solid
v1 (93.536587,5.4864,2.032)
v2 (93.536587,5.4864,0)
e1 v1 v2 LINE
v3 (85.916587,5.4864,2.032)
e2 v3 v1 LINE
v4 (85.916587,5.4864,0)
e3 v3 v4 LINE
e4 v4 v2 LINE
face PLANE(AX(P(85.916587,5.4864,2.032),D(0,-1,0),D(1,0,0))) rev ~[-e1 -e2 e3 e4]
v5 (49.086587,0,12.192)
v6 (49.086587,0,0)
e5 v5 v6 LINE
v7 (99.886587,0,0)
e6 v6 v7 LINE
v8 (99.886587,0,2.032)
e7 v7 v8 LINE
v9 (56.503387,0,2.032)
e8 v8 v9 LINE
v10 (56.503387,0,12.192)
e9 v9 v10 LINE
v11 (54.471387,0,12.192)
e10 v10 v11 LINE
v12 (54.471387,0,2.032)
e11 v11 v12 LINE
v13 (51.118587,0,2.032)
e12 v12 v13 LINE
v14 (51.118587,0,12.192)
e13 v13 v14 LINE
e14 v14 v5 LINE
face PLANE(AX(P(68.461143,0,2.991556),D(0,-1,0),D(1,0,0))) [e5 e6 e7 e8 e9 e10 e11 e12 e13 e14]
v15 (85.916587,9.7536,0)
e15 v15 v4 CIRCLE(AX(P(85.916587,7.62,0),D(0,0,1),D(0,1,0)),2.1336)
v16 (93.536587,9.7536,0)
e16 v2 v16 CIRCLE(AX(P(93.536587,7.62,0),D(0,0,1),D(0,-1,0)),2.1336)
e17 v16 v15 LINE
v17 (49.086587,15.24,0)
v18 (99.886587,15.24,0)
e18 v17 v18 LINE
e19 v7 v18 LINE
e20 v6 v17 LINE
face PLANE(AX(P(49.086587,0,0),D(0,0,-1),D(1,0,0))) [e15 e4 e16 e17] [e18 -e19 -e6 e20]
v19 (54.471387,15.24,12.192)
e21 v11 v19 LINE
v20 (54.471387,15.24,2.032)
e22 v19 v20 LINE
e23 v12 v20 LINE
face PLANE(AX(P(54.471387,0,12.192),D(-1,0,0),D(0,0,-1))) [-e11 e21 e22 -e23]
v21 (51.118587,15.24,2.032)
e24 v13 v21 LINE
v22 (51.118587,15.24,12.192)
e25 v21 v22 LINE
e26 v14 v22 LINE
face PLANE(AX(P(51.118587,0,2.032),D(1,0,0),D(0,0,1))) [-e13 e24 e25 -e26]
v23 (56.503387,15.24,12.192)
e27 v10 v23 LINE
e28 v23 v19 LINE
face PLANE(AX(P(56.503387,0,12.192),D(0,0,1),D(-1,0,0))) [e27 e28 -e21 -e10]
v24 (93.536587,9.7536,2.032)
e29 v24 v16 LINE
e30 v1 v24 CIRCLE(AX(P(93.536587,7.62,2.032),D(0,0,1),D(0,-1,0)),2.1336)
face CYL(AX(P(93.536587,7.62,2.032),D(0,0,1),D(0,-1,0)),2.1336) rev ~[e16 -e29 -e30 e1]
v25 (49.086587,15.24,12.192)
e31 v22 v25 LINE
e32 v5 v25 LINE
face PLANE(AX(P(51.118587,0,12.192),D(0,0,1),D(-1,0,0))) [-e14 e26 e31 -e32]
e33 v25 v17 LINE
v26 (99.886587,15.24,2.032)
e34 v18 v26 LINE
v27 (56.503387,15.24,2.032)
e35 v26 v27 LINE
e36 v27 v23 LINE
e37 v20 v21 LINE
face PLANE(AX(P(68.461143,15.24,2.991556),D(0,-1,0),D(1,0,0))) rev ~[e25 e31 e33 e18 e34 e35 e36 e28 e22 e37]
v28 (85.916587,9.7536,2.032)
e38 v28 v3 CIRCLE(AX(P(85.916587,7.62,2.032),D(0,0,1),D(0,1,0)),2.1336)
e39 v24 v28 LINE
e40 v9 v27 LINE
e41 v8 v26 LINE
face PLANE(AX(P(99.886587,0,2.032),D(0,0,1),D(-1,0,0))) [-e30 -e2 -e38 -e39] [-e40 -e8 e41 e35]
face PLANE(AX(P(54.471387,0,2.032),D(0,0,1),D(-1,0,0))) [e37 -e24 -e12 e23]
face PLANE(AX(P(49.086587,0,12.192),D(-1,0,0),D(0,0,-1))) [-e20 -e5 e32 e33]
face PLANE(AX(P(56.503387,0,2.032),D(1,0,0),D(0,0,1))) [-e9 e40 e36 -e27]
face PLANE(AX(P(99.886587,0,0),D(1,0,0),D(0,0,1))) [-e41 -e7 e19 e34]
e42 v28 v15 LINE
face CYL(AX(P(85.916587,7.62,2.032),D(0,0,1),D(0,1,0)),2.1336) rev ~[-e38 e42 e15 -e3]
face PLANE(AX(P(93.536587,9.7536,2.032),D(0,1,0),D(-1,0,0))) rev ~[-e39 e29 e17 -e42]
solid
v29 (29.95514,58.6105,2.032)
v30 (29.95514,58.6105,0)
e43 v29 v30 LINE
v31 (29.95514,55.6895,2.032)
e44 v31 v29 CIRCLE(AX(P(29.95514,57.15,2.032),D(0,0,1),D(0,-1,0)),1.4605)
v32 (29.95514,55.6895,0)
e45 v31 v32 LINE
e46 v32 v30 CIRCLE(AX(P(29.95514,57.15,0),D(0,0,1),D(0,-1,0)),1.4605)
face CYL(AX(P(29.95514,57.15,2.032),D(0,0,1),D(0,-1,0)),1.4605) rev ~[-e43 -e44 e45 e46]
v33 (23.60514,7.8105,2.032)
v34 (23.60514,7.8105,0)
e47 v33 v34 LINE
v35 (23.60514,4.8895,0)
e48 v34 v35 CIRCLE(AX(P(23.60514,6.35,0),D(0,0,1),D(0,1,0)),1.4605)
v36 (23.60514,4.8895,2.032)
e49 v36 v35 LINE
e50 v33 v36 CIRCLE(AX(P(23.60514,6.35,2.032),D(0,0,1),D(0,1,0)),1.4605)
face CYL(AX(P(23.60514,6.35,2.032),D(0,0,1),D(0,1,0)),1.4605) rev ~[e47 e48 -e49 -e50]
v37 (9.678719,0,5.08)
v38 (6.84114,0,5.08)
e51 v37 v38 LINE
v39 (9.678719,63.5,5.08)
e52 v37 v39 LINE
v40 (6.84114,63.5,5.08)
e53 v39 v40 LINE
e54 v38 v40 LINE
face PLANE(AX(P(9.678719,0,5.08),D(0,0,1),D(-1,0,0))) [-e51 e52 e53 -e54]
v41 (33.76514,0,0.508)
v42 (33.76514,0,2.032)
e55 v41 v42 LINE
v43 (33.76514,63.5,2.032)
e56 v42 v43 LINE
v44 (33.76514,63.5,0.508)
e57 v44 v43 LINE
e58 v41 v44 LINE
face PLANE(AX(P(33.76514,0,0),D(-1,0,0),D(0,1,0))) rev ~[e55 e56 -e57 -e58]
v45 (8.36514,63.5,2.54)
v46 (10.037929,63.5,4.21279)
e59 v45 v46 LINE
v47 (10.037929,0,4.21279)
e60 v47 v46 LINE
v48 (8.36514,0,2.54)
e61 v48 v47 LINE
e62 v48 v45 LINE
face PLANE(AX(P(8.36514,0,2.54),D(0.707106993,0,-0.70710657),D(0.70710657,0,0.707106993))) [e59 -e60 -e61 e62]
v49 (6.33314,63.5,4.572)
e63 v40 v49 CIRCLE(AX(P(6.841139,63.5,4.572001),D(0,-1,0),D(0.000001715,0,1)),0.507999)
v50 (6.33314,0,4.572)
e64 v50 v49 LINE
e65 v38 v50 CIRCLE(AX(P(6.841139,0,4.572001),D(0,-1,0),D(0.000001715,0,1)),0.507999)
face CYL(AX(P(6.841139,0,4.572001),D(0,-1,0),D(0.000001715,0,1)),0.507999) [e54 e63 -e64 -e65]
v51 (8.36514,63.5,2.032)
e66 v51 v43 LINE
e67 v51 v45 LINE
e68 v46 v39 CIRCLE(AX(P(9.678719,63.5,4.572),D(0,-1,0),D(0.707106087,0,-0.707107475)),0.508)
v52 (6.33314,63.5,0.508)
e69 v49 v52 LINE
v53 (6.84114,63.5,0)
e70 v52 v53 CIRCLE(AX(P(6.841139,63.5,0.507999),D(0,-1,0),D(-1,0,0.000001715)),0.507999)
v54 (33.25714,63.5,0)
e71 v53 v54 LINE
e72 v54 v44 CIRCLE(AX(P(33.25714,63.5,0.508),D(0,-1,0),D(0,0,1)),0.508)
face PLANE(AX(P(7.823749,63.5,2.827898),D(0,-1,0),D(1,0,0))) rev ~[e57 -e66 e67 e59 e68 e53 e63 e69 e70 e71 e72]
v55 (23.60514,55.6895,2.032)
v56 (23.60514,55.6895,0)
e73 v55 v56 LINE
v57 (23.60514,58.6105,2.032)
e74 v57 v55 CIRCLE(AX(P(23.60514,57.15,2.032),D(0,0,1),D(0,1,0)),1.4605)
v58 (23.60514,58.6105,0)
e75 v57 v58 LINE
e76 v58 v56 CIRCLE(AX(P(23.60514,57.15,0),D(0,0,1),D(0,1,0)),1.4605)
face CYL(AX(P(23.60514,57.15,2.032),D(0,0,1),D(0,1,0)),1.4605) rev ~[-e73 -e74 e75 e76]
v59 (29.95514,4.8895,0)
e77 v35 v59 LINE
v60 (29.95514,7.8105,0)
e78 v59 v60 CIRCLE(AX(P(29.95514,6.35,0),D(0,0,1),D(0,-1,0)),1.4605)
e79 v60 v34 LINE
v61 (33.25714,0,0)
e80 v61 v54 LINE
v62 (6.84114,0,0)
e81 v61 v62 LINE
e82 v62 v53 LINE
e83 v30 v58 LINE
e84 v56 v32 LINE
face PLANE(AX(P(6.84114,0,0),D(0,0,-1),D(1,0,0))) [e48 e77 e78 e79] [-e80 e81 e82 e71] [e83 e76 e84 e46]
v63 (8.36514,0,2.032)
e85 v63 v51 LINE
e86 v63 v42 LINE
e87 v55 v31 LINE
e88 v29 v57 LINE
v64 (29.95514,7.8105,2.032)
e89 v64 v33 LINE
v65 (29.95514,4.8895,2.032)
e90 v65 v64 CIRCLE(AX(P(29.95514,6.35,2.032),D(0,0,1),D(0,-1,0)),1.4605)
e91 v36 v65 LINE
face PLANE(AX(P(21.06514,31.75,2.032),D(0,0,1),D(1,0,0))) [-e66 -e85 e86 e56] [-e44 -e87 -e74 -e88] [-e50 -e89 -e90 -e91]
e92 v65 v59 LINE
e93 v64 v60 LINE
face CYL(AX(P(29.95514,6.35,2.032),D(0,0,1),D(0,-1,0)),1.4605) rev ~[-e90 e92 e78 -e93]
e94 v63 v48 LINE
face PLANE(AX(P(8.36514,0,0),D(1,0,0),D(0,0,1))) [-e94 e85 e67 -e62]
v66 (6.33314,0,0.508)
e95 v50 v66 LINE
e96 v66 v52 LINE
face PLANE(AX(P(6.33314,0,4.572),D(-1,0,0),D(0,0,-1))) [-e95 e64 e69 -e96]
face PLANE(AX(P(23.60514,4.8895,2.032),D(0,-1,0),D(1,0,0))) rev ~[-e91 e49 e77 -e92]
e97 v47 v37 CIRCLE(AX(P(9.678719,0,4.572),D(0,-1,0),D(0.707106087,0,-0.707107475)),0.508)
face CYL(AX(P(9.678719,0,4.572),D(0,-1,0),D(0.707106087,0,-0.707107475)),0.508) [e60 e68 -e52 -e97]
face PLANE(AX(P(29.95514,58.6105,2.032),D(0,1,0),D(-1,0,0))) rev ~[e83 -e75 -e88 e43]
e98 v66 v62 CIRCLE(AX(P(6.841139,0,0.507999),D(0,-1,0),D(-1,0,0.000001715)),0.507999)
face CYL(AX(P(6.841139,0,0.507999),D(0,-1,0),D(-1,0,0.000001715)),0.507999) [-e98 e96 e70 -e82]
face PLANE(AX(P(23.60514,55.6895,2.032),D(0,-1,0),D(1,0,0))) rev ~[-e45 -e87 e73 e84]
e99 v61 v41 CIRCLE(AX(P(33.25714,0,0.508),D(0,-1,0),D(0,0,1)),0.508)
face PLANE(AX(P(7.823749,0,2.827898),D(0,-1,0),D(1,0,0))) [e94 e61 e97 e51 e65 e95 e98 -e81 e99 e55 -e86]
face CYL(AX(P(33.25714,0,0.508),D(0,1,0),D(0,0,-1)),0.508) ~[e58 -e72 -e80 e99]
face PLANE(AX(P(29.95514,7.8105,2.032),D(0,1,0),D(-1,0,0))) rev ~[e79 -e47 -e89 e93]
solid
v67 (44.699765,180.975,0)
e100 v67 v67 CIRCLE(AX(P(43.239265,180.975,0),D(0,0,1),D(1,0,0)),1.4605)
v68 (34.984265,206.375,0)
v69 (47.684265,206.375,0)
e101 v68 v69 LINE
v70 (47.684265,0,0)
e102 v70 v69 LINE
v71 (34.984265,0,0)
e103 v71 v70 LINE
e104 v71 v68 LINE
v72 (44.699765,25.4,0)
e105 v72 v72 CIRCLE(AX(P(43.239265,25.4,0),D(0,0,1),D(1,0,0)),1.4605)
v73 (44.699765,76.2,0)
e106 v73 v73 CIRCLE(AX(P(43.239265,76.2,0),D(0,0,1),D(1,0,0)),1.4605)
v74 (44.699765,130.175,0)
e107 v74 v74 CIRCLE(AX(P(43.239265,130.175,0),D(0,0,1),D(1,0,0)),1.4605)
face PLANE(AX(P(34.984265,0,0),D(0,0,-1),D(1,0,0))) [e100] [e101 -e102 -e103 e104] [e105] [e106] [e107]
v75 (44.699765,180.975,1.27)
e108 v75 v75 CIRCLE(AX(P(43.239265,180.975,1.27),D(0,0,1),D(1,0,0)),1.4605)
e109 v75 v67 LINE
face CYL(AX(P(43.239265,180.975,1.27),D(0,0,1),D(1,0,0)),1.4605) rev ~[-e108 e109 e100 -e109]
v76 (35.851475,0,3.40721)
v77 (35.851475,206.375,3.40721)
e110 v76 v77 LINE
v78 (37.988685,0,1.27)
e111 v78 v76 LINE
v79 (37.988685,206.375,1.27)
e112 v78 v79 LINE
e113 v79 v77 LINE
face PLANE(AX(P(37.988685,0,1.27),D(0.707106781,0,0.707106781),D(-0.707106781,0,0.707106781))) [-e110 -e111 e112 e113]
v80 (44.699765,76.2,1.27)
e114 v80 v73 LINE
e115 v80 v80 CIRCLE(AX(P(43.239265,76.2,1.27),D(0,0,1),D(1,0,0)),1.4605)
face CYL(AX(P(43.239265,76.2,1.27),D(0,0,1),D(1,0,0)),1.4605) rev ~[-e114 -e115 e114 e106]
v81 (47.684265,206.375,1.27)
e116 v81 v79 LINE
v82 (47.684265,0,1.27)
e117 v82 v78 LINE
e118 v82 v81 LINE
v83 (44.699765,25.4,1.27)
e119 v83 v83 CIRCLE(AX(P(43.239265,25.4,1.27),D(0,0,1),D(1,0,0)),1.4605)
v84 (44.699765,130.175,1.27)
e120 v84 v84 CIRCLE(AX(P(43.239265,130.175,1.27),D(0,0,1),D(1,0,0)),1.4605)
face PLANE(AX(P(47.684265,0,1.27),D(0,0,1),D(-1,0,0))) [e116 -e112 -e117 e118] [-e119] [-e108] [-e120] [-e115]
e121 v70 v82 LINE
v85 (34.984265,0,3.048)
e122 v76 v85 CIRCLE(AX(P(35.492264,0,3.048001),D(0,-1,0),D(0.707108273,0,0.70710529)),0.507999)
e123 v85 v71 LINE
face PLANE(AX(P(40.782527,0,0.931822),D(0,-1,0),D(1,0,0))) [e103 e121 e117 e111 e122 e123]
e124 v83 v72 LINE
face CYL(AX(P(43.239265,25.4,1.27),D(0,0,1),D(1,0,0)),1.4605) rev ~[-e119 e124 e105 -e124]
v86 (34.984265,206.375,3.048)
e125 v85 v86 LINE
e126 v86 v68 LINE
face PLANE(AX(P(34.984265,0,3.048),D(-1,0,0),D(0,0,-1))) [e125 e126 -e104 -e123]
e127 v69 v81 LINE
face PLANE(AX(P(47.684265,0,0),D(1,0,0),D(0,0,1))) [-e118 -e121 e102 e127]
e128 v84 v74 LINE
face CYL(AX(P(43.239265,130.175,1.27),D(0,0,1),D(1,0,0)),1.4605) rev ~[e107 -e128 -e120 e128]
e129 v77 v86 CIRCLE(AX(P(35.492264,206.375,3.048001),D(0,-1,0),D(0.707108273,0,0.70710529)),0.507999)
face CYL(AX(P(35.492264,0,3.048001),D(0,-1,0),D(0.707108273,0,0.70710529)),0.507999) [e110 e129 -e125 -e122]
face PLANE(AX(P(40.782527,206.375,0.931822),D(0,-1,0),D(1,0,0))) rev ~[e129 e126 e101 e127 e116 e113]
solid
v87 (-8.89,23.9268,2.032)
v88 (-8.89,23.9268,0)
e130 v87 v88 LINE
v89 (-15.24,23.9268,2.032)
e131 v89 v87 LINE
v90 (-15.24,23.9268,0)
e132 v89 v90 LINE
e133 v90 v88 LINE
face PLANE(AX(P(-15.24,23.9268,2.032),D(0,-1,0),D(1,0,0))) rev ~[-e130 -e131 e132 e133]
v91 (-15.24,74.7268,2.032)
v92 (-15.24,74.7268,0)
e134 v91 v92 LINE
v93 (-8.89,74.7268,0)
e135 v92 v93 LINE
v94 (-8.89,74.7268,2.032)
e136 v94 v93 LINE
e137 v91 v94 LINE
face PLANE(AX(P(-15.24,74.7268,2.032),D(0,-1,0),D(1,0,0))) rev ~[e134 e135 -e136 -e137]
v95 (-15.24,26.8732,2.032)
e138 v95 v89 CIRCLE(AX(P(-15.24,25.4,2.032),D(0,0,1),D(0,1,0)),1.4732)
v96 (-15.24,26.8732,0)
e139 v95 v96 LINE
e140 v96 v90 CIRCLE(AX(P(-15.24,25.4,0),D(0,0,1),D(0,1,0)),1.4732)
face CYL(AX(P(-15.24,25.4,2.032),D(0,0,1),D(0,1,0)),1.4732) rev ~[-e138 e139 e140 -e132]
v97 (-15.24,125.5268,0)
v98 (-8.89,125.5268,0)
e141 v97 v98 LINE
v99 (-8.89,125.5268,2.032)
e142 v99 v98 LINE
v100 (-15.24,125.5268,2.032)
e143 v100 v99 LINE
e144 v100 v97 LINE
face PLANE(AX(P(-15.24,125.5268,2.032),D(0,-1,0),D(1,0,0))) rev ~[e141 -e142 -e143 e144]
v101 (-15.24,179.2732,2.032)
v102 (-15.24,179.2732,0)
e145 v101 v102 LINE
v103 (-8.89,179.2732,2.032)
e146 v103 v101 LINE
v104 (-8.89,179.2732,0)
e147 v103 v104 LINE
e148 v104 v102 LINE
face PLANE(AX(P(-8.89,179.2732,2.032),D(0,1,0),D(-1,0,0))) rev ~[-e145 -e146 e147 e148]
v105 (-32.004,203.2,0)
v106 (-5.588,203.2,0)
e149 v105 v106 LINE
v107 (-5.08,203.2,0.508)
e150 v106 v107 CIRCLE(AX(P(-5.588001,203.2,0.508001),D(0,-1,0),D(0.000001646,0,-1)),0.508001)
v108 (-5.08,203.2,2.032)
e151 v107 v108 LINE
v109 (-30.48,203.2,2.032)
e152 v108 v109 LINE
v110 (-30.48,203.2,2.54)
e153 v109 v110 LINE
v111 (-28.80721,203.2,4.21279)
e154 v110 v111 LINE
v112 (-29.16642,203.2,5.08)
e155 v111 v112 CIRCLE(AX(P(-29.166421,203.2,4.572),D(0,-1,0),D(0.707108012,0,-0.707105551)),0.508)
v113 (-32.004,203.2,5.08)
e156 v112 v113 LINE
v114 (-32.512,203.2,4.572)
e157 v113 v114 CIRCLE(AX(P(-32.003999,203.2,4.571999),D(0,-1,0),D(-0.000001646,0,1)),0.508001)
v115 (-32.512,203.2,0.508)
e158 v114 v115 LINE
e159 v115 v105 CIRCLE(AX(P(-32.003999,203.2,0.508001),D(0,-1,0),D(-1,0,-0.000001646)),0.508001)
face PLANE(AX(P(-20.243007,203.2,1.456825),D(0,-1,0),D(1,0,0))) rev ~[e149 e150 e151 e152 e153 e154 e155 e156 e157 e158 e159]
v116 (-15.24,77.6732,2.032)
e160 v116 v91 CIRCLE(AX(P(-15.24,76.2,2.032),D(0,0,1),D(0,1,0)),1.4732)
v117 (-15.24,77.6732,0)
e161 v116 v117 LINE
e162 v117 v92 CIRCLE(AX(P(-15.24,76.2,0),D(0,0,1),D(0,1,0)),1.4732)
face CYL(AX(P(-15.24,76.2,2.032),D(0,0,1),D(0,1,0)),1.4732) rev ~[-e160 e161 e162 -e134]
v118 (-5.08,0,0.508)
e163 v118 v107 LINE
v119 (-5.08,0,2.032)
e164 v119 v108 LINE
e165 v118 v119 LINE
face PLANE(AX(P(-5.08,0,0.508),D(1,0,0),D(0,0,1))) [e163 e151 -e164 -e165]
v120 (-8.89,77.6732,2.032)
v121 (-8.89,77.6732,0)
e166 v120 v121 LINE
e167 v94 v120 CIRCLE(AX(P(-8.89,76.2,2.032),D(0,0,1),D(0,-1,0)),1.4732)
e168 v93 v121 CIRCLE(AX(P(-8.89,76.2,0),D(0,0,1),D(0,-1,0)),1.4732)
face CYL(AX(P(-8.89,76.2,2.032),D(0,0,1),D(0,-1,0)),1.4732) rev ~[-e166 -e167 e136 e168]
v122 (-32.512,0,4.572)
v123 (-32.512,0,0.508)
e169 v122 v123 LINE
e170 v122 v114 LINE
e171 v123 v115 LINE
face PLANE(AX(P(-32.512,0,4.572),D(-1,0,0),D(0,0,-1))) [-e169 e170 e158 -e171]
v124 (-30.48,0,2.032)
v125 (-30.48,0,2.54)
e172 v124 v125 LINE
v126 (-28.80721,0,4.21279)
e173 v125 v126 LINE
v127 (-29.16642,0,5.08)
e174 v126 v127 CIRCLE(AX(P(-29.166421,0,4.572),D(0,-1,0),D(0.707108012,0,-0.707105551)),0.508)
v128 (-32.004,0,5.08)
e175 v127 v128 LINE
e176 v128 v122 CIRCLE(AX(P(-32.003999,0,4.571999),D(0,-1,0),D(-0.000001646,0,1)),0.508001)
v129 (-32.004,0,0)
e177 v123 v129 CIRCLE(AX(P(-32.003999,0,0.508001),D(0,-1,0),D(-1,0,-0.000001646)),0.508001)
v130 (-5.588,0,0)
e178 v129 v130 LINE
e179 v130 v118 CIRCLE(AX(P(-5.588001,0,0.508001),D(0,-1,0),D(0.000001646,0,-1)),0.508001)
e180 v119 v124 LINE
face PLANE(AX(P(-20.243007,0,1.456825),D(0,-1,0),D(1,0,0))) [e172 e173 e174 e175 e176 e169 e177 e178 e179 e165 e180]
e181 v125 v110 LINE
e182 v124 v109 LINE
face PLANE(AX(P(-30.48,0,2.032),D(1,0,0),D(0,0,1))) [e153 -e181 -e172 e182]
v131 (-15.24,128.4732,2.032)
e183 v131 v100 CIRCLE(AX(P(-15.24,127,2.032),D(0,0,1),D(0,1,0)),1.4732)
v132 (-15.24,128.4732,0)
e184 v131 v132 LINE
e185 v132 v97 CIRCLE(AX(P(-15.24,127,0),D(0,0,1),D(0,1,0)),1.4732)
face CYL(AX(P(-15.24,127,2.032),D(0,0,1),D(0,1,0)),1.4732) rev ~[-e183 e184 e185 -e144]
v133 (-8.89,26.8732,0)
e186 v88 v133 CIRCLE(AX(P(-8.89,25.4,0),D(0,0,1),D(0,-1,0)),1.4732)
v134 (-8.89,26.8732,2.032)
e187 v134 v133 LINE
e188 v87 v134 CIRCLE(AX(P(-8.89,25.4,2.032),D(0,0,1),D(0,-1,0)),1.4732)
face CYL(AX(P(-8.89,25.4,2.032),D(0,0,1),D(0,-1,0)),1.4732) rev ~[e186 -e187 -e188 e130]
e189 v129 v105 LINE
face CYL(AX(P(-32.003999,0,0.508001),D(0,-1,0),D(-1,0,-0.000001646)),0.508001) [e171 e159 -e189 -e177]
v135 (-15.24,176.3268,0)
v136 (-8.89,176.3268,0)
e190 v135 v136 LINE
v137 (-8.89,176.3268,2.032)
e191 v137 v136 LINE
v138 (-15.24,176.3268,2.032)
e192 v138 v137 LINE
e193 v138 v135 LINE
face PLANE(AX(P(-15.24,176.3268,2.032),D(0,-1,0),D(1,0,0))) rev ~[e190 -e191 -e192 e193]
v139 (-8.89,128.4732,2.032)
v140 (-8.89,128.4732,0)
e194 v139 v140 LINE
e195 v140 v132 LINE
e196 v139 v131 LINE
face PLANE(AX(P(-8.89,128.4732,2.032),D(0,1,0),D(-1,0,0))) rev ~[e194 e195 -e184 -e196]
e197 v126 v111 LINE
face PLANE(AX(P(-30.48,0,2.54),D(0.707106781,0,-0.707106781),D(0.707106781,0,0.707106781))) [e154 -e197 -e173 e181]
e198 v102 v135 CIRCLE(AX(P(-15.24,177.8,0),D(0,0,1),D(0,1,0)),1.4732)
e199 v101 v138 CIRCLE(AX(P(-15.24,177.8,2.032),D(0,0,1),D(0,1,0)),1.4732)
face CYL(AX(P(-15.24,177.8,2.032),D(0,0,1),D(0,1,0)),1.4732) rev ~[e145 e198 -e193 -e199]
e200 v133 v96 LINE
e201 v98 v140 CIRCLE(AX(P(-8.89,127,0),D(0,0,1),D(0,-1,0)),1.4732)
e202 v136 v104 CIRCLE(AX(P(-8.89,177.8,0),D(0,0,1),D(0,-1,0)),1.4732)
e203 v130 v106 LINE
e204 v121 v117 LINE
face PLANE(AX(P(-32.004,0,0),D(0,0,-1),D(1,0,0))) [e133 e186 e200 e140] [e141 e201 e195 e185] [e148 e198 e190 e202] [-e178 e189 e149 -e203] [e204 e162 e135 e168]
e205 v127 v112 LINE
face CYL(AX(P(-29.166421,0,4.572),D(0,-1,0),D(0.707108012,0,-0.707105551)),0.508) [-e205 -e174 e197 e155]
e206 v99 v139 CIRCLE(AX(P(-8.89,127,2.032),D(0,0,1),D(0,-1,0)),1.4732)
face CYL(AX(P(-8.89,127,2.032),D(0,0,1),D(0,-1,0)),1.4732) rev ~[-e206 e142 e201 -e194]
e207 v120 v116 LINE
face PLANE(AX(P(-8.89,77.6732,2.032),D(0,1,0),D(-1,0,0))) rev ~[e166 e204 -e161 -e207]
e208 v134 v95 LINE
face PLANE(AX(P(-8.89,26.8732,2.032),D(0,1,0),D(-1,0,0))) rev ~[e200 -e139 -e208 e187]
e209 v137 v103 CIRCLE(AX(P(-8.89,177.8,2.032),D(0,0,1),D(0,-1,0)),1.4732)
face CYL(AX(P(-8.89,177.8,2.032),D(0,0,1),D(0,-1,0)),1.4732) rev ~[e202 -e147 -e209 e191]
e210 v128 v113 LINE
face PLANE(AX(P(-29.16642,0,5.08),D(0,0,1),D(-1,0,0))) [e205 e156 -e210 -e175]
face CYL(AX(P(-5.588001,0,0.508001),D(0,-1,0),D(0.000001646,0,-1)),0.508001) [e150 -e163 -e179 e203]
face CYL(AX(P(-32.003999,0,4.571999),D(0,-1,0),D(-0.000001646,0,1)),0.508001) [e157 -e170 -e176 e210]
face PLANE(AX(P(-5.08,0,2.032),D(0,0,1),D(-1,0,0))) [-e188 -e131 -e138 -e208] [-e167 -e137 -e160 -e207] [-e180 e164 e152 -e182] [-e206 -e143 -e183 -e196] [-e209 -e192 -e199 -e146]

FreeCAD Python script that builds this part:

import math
import FreeCAD as App
import Part
import Sketcher
Q = App.Units.Quantity


def edges_at(feature, points):
    """Names of the edges that pass closest to the given points."""
    edges = feature.Shape.Edges
    near = lambda p: min(range(len(edges)), key=lambda i: edges[i].distToShape(Part.Vertex(*p))[0])
    return sorted({f"Edge{near(p) + 1}" for p in points})


def add_polygon(sketch, points):
    """Adds a closed chain of lines whose ends are joined by coincident constraints."""
    first, n = sketch.GeometryCount, len(points)
    for a, b in zip(points, points[1:] + points[:1]):
        sketch.addGeometry(Part.LineSegment(App.Vector(*a, 0), App.Vector(*b, 0)), False)
    for i in range(n):
        sketch.addConstraint(Sketcher.Constraint("Coincident", first + i, 2, first + (i + 1) % n, 1))

doc = App.newDocument("Part")
params = doc.addObject("Spreadsheet::Sheet", "Params")
for row, (alias, value) in enumerate([
    ("sketch1_width", "1 in"),
    ("sketch1_height", "2.5 in"),
    ("pad1_length", "0.08 in"),
    ("sketch2_radius", "0.02 in"),
    ("sketch2_height", "0.1 in"),
    ("sketch2_width", "0.06 in"),
    ("sketch2_height2", "0.16 in"),
    ("pad2_length", "2.5 in"),
    ("fillet_radius", "0.02 in"),
    ("sketch3_width", "0.25 in"),
    ("sketch4_radius", "0.02 in"),
    ("sketch4_width", "0.5 in"),
    ("sketch4_height", "0.12 in"),
    ("sketch4_height2", "0.05 in"),
    ("pad3_length", "8.125 in"),
    ("sketch5_diameter", "0.115 in"),
    ("sketch6_width", "2 in"),
    ("sketch6_height", "0.4 in"),
    ("sketch6_width2", "0.08 in"),
    ("sketch6_width3", "1.708 in"),
    ("pad4_length", "0.6 in"),
    ("sketch7_width", "0.3 in"),
    ("sketch7_radius", "0.084 in"),
    ("sketch8_width", "1 in"),
    ("sketch8_radius", "0.02 in"),
    ("sketch8_width2", "1.04 in"),
    ("sketch8_height", "0.06 in"),
    ("sketch8_height2", "0.02 in"),
    ("pad5_length", "8 in"),
    ("sketch9_radius", "0.058 in"),
    ("sketch9_width", "0.25 in"),
], start=1):
    params.set(f"A{row}", alias)
    params.set(f"B{row}", "=" + value)
    params.setAlias(f"B{row}", alias)

body = doc.addObject("PartDesign::Body", "Body")

# Sketch on XY plane
sketch1 = body.newObject("Sketcher::SketchObject", "Sketch")
sketch1.AttachmentSupport = (doc.getObject("XY_Plane"), [""])
sketch1.MapMode = "FlatFace"
add_polygon(sketch1, [(8, 64), (8, 0), (34, 0), (34, 64)])  # lines 0-3
sketch1.addConstraint([
    Sketcher.Constraint("Vertical", 0),
    Sketcher.Constraint("Horizontal", 1),
    Sketcher.Constraint("Vertical", 2),
    Sketcher.Constraint("Horizontal", 3),
    Sketcher.Constraint("PointOnObject", 0, 2, -1),
    Sketcher.Constraint("DistanceX", 1, 1, 1, 2, Q("1 in")),
    Sketcher.Constraint("DistanceY", 0, 2, 0, 1, Q("2.5 in")),
    Sketcher.Constraint("DistanceX", -1, 1, 0, 2, 8.36514),
])
sketch1.setExpression("Constraints[9]", "Params.sketch1_width")
sketch1.setExpression("Constraints[10]", "Params.sketch1_height")
pad1 = body.newObject("PartDesign::Pad", "Pad")
pad1.Profile = sketch1
pad1.setExpression("Length", "Params.pad1_length")

# Sketch on XZ plane
sketch2 = body.newObject("Sketcher::SketchObject", "Sketch001")
sketch2.AttachmentSupport = (doc.getObject("XZ_Plane"), [""])
sketch2.MapMode = "FlatFace"
sketch2.addGeometry([
    Part.LineSegment(App.Vector(6.8, 0, 0), App.Vector(8.4, 0, 0)),  # 0
    Part.LineSegment(App.Vector(8.4, 0, 0), App.Vector(8.4, 2.5, 0)),  # 1
    Part.LineSegment(App.Vector(8.4, 2.5, 0), App.Vector(10, 4.2, 0)),  # 2
    Part.ArcOfCircle(Part.Circle(App.Vector(9.7, 4.6, 0), App.Vector(0, 0, 1), 0.5), math.radians(-45), math.radians(90)),  # 3
    Part.LineSegment(App.Vector(9.7, 5.1, 0), App.Vector(6.8, 5.1, 0)),  # 4
    Part.ArcOfCircle(Part.Circle(App.Vector(6.8, 4.6, 0), App.Vector(0, 0, 1), 0.5), math.radians(90), math.radians(180)),  # 5
    Part.LineSegment(App.Vector(6.3, 4.6, 0), App.Vector(6.3, 0.5, 0)),  # 6
    Part.ArcOfCircle(Part.Circle(App.Vector(6.8, 0.5, 0), App.Vector(0, 0, 1), 0.5), math.radians(180), math.radians(270)),  # 7
], False)
sketch2.addConstraint([
    Sketcher.Constraint("Coincident", 0, 2, 1, 1),
    Sketcher.Constraint("Coincident", 1, 2, 2, 1),
    Sketcher.Constraint("Tangent", 2, 2, 3, 1),
    Sketcher.Constraint("Tangent", 3, 2, 4, 1),
    Sketcher.Constraint("Tangent", 4, 2, 5, 1),
    Sketcher.Constraint("Tangent", 5, 2, 6, 1),
    Sketcher.Constraint("Tangent", 6, 2, 7, 1),
    Sketcher.Constraint("Tangent", 7, 2, 0, 1),
    Sketcher.Constraint("Horizontal", 0),
    Sketcher.Constraint("Vertical", 1),
    Sketcher.Constraint("Horizontal", 4),
    Sketcher.Constraint("Vertical", 6),
    Sketcher.Constraint("Equal", 3, 5),
    Sketcher.Constraint("Equal", 5, 7),
    Sketcher.Constraint("PointOnObject", 0, 2, -1),
    Sketcher.Constraint("Radius", 3, Q("0.02 in")),
    Sketcher.Constraint("DistanceY", 1, 1, 1, 2, Q("0.1 in")),
    Sketcher.Constraint("Angle", 2, Q("45.000017 deg")),
    Sketcher.Constraint("DistanceX", 0, 1, 0, 2, Q("0.06 in")),
    Sketcher.Constraint("DistanceY", 6, 2, 6, 1, Q("0.16 in")),
    Sketcher.Constraint("DistanceX", -1, 1, 3, 3, 9.678719),
])
sketch2.setExpression("Constraints[15]", "Params.sketch2_radius")
sketch2.setExpression("Constraints[16]", "Params.sketch2_height")
sketch2.setExpression("Constraints[18]", "Params.sketch2_width")
sketch2.setExpression("Constraints[19]", "Params.sketch2_height2")
pad2 = body.newObject("PartDesign::Pad", "Pad001")
pad2.Profile = sketch2
pad2.setExpression("Length", "Params.pad2_length")
pad2.Reversed = True
doc.recompute()

fillet = body.newObject("PartDesign::Fillet", "Fillet")
fillet.Base = (pad2, edges_at(pad2, [(33.765, 31.75, 0)]))
fillet.setExpression("Radius", "Params.fillet_radius")

# Sketch on XY plane
sketch3 = body.newObject("Sketcher::SketchObject", "Sketch002")
sketch3.AttachmentSupport = (doc.getObject("XY_Plane"), [""])
sketch3.MapMode = "FlatFace"
sketch3.AttachmentOffset = App.Placement(App.Vector(0, 0, 0.08 * 25.4), App.Rotation())
sketch3.addGeometry([
    Part.LineSegment(App.Vector(23.6, 4.9, 0), App.Vector(30, 4.9, 0)),  # 0
    Part.ArcOfCircle(Part.Circle(App.Vector(30, 6.3, 0), App.Vector(0, 0, 1), 1.5), math.radians(-90), math.radians(90)),  # 1
    Part.LineSegment(App.Vector(30, 7.8, 0), App.Vector(23.6, 7.8, 0)),  # 2
    Part.ArcOfCircle(Part.Circle(App.Vector(23.6, 6.3, 0), App.Vector(0, 0, 1), 1.5), math.radians(90), math.radians(270)),  # 3
    Part.LineSegment(App.Vector(23.6, 55.7, 0), App.Vector(30, 55.7, 0)),  # 4
    Part.ArcOfCircle(Part.Circle(App.Vector(30, 57.1, 0), App.Vector(0, 0, 1), 1.5), math.radians(-90), math.radians(90)),  # 5
    Part.LineSegment(App.Vector(30, 58.6, 0), App.Vector(23.6, 58.6, 0)),  # 6
    Part.ArcOfCircle(Part.Circle(App.Vector(23.6, 57.1, 0), App.Vector(0, 0, 1), 1.5), math.radians(90), math.radians(270)),  # 7
], False)
sketch3.addConstraint([
    Sketcher.Constraint("Tangent", 0, 2, 1, 1),
    Sketcher.Constraint("Tangent", 1, 2, 2, 1),
    Sketcher.Constraint("Tangent", 2, 2, 3, 1),
    Sketcher.Constraint("Tangent", 3, 2, 0, 1),
    Sketcher.Constraint("Tangent", 4, 2, 5, 1),
    Sketcher.Constraint("Tangent", 5, 2, 6, 1),
    Sketcher.Constraint("Tangent", 6, 2, 7, 1),
    Sketcher.Constraint("Tangent", 7, 2, 4, 1),
    Sketcher.Constraint("Horizontal", 0),
    Sketcher.Constraint("Horizontal", 2),
    Sketcher.Constraint("Horizontal", 4),
    Sketcher.Constraint("Horizontal", 6),
    Sketcher.Constraint("Equal", 3, 5),
    Sketcher.Constraint("Vertical", 1, 3, 5, 3),
    Sketcher.Constraint("Vertical", 3, 3, 7, 3),
    Sketcher.Constraint("DistanceY", 1, 3, 5, 3, Q("2 in")),
    Sketcher.Constraint("DistanceX", 0, 1, 0, 2, Q("0.25 in")),
    Sketcher.Constraint("Radius", 1, Q("0.0575 in")),
    Sketcher.Constraint("DistanceY", -1, 1, 1, 3, Q("0.25 in")),
    Sketcher.Constraint("DistanceX", -1, 1, 1, 3, 29.95514),
])
sketch3.setExpression("Constraints[16]", "Params.sketch3_width")
pocket1 = body.newObject("PartDesign::Pocket", "Pocket")
pocket1.Profile = sketch3
pocket1.Type = "ThroughAll"
body2 = doc.addObject("PartDesign::Body", "Body001")

# Sketch on XZ plane
sketch4 = body2.newObject("Sketcher::SketchObject", "Sketch003")
sketch4.AttachmentSupport = (doc.getObject("XZ_Plane001"), [""])
sketch4.MapMode = "FlatFace"
sketch4.addGeometry([
    Part.ArcOfCircle(Part.Circle(App.Vector(35.5, 3, 0), App.Vector(0, 0, 1), 0.5), math.radians(45), math.radians(180)),  # 0
    Part.LineSegment(App.Vector(35, 3, 0), App.Vector(35, 0, 0)),  # 1
    Part.LineSegment(App.Vector(35, 0, 0), App.Vector(47.7, 0, 0)),  # 2
    Part.LineSegment(App.Vector(47.7, 0, 0), App.Vector(47.7, 1.3, 0)),  # 3
    Part.LineSegment(App.Vector(47.7, 1.3, 0), App.Vector(38, 1.3, 0)),  # 4
    Part.LineSegment(App.Vector(38, 1.3, 0), App.Vector(35.9, 3.4, 0)),  # 5
], False)
sketch4.addConstraint([
    Sketcher.Constraint("Tangent", 0, 2, 1, 1),
    Sketcher.Constraint("Coincident", 1, 2, 2, 1),
    Sketcher.Constraint("Coincident", 2, 2, 3, 1),
    Sketcher.Constraint("Coincident", 3, 2, 4, 1),
    Sketcher.Constraint("Coincident", 4, 2, 5, 1),
    Sketcher.Constraint("Coincident", 5, 2, 0, 1),
    Sketcher.Constraint("Vertical", 1),
    Sketcher.Constraint("Horizontal", 2),
    Sketcher.Constraint("Vertical", 3),
    Sketcher.Constraint("Horizontal", 4),
    Sketcher.Constraint("PointOnObject", 1, 2, -1),
    Sketcher.Constraint("Radius", 0, Q("0.02 in")),
    Sketcher.Constraint("DistanceX", 2, 1, 2, 2, Q("0.5 in")),
    Sketcher.Constraint("Angle", 5, Q("135 deg")),
    Sketcher.Constraint("DistanceY", 1, 2, 1, 1, Q("0.12 in")),
    Sketcher.Constraint("DistanceY", 3, 1, 3, 2, Q("0.05 in")),
    Sketcher.Constraint("Distance", 5, 3.022471),
    Sketcher.Constraint("DistanceX", -1, 1, 0, 3, 35.492264),
])
sketch4.setExpression("Constraints[11]", "Params.sketch4_radius")
sketch4.setExpression("Constraints[12]", "Params.sketch4_width")
sketch4.setExpression("Constraints[14]", "Params.sketch4_height")
sketch4.setExpression("Constraints[15]", "Params.sketch4_height2")
pad3 = body2.newObject("PartDesign::Pad", "Pad002")
pad3.Profile = sketch4
pad3.setExpression("Length", "Params.pad3_length")
pad3.Reversed = True

# Sketch on XY plane
sketch5 = body2.newObject("Sketcher::SketchObject", "Sketch004")
sketch5.AttachmentSupport = (doc.getObject("XY_Plane001"), [""])
sketch5.MapMode = "FlatFace"
sketch5.AttachmentOffset = App.Placement(App.Vector(0, 0, 0.05 * 25.4), App.Rotation())
sketch5.addGeometry([
    Part.Circle(App.Vector(43.2, 181, 0), App.Vector(0, 0, 1), 1.5),
    Part.Circle(App.Vector(43.2, 130.2, 0), App.Vector(0, 0, 1), 1.5),
    Part.Circle(App.Vector(43.2, 76.2, 0), App.Vector(0, 0, 1), 1.5),
    Part.Circle(App.Vector(43.2, 25.4, 0), App.Vector(0, 0, 1), 1.5),
], False)
sketch5.addConstraint([
    Sketcher.Constraint("Equal", 0, 1),
    Sketcher.Constraint("Equal", 1, 2),
    Sketcher.Constraint("Equal", 2, 3),
    Sketcher.Constraint("Vertical", 0, 3, 1, 3),
    Sketcher.Constraint("Vertical", 1, 3, 2, 3),
    Sketcher.Constraint("Vertical", 2, 3, 3, 3),
    Sketcher.Constraint("Diameter", 0, Q("0.115 in")),
    Sketcher.Constraint("DistanceY", -1, 1, 2, 3, Q("3 in")),
    Sketcher.Constraint("DistanceY", -1, 1, 3, 3, Q("1 in")),
    Sketcher.Constraint("DistanceY", 1, 3, 0, 3, Q("2 in")),
    Sketcher.Constraint("DistanceY", -1, 1, 0, 3, Q("7.125 in")),
    Sketcher.Constraint("DistanceX", -1, 1, 0, 3, 43.239265),
])
sketch5.setExpression("Constraints[6]", "Params.sketch5_diameter")
pocket2 = body2.newObject("PartDesign::Pocket", "Pocket001")
pocket2.Profile = sketch5
pocket2.Type = "ThroughAll"
body3 = doc.addObject("PartDesign::Body", "Body002")

# Sketch on XZ plane
sketch6 = body3.newObject("Sketcher::SketchObject", "Sketch005")
sketch6.AttachmentSupport = (doc.getObject("XZ_Plane002"), [""])
sketch6.MapMode = "FlatFace"
add_polygon(sketch6, [(49.1, 12.2), (49.1, 0), (99.9, 0), (99.9, 2), (56.5, 2), (56.5, 12.2), (54.5, 12.2), (54.5, 2), (51.1, 2), (51.1, 12.2)])  # lines 0-9
sketch6.addConstraint([
    Sketcher.Constraint("Vertical", 0),
    Sketcher.Constraint("Horizontal", 1),
    Sketcher.Constraint("Vertical", 2),
    Sketcher.Constraint("Horizontal", 3),
    Sketcher.Constraint("Vertical", 4),
    Sketcher.Constraint("Horizontal", 5),
    Sketcher.Constraint("Vertical", 6),
    Sketcher.Constraint("Horizontal", 7),
    Sketcher.Constraint("Vertical", 8),
    Sketcher.Constraint("Horizontal", 9),
    Sketcher.Constraint("PointOnObject", 0, 2, -1),
    Sketcher.Constraint("Horizontal", 3, 2, 6, 2),
    Sketcher.Constraint("Horizontal", 5, 2, 8, 2),
    Sketcher.Constraint("Equal", 5, 9),
    Sketcher.Constraint("Equal", 9, 2),
    Sketcher.Constraint("DistanceX", 1, 1, 1, 2, Q("2 in")),
    Sketcher.Constraint("DistanceY", 4, 1, 4, 2, Q("0.4 in")),
    Sketcher.Constraint("DistanceX", 5, 2, 5, 1, Q("0.08 in")),
    Sketcher.Constraint("DistanceX", 3, 2, 3, 1, Q("1.708 in")),
    Sketcher.Constraint("DistanceX", -1, 1, 0, 2, 49.086587),
])
sketch6.setExpression("Constraints[25]", "Params.sketch6_width")
sketch6.setExpression("Constraints[26]", "Params.sketch6_height")
sketch6.setExpression("Constraints[27]", "Params.sketch6_width2")
sketch6.setExpression("Constraints[28]", "Params.sketch6_width3")
pad4 = body3.newObject("PartDesign::Pad", "Pad003")
pad4.Profile = sketch6
pad4.setExpression("Length", "Params.pad4_length")
pad4.Reversed = True

# Sketch on XY plane
sketch7 = body3.newObject("Sketcher::SketchObject", "Sketch006")
sketch7.AttachmentSupport = (doc.getObject("XY_Plane002"), [""])
sketch7.MapMode = "FlatFace"
sketch7.AttachmentOffset = App.Placement(App.Vector(0, 0, 0.08 * 25.4), App.Rotation())
sketch7.addGeometry([
    Part.LineSegment(App.Vector(93.5, 9.8, 0), App.Vector(85.9, 9.8, 0)),
    Part.ArcOfCircle(Part.Circle(App.Vector(85.9, 7.6, 0), App.Vector(0, 0, 1), 2.1), math.radians(90), math.radians(270)),
    Part.LineSegment(App.Vector(85.9, 5.5, 0), App.Vector(93.5, 5.5, 0)),
    Part.ArcOfCircle(Part.Circle(App.Vector(93.5, 7.6, 0), App.Vector(0, 0, 1), 2.1), math.radians(-90), math.radians(90)),
], False)
sketch7.addConstraint([
    Sketcher.Constraint("Tangent", 0, 2, 1, 1),
    Sketcher.Constraint("Tangent", 1, 2, 2, 1),
    Sketcher.Constraint("Tangent", 2, 2, 3, 1),
    Sketcher.Constraint("Tangent", 3, 2, 0, 1),
    Sketcher.Constraint("Horizontal", 0),
    Sketcher.Constraint("Horizontal", 2),
    Sketcher.Constraint("DistanceX", 0, 2, 0, 1, Q("0.3 in")),
    Sketcher.Constraint("Radius", 1, Q("0.084 in")),
    Sketcher.Constraint("DistanceY", -1, 1, 1, 3, Q("0.3 in")),
    Sketcher.Constraint("DistanceX", -1, 1, 1, 3, 85.916587),
])
sketch7.setExpression("Constraints[6]", "Params.sketch7_width")
sketch7.setExpression("Constraints[7]", "Params.sketch7_radius")
pocket3 = body3.newObject("PartDesign::Pocket", "Pocket002")
pocket3.Profile = sketch7
pocket3.Type = "ThroughAll"
body4 = doc.addObject("PartDesign::Body", "Body003")

# Sketch on XZ plane
sketch8 = body4.newObject("Sketcher::SketchObject", "Sketch007")
sketch8.AttachmentSupport = (doc.getObject("XZ_Plane003"), [""])
sketch8.MapMode = "FlatFace"
sketch8.addGeometry([
    Part.LineSegment(App.Vector(-32, 0, 0), App.Vector(-5.6, 0, 0)),  # 0
    Part.ArcOfCircle(Part.Circle(App.Vector(-5.6, 0.5, 0), App.Vector(0, 0, 1), 0.5), math.radians(-90), math.radians(0)),  # 1
    Part.LineSegment(App.Vector(-5.1, 0.5, 0), App.Vector(-5.1, 2, 0)),  # 2
    Part.LineSegment(App.Vector(-5.1, 2, 0), App.Vector(-30.5, 2, 0)),  # 3
    Part.LineSegment(App.Vector(-30.5, 2, 0), App.Vector(-30.5, 2.5, 0)),  # 4
    Part.LineSegment(App.Vector(-30.5, 2.5, 0), App.Vector(-28.8, 4.2, 0)),  # 5
    Part.ArcOfCircle(Part.Circle(App.Vector(-29.2, 4.6, 0), App.Vector(0, 0, 1), 0.5), math.radians(-45), math.radians(90)),  # 6
    Part.LineSegment(App.Vector(-29.2, 5.1, 0), App.Vector(-32, 5.1, 0)),  # 7
    Part.ArcOfCircle(Part.Circle(App.Vector(-32, 4.6, 0), App.Vector(0, 0, 1), 0.5), math.radians(90), math.radians(180)),  # 8
    Part.LineSegment(App.Vector(-32.5, 4.6, 0), App.Vector(-32.5, 0.5, 0)),  # 9
    Part.ArcOfCircle(Part.Circle(App.Vector(-32, 0.5, 0), App.Vector(0, 0, 1), 0.5), math.radians(-180), math.radians(-90)),  # 10
], False)
sketch8.addConstraint([
    Sketcher.Constraint("Tangent", 0, 2, 1, 1),
    Sketcher.Constraint("Tangent", 1, 2, 2, 1),
    Sketcher.Constraint("Coincident", 2, 2, 3, 1),
    Sketcher.Constraint("Coincident", 3, 2, 4, 1),
    Sketcher.Constraint("Coincident", 4, 2, 5, 1),
    Sketcher.Constraint("Tangent", 5, 2, 6, 1),
    Sketcher.Constraint("Coincident", 6, 2, 7, 1),
    Sketcher.Constraint("Tangent", 7, 2, 8, 1),
    Sketcher.Constraint("Tangent", 8, 2, 9, 1),
    Sketcher.Constraint("Tangent", 9, 2, 10, 1),
    Sketcher.Constraint("Tangent", 10, 2, 0, 1),
    Sketcher.Constraint("Horizontal", 0),
    Sketcher.Constraint("Vertical", 2),
    Sketcher.Constraint("Horizontal", 3),
    Sketcher.Constraint("Vertical", 4),
    Sketcher.Constraint("Horizontal", 7),
    Sketcher.Constraint("Vertical", 9),
    Sketcher.Constraint("Equal", 1, 6),
    Sketcher.Constraint("Equal", 6, 8),
    Sketcher.Constraint("Equal", 8, 10),
    Sketcher.Constraint("PointOnObject", 0, 2, -1),
    Sketcher.Constraint("DistanceX", 3, 2, 3, 1, Q("1 in")),
    Sketcher.Constraint("Radius", 1, Q("0.02 in")),
    Sketcher.Constraint("Angle", 5, Q("45 deg")),
    Sketcher.Constraint("DistanceX", 0, 1, 0, 2, Q("1.04 in")),
    Sketcher.Constraint("DistanceY", 2, 1, 2, 2, Q("0.06 in")),
    Sketcher.Constraint("DistanceY", 4, 1, 4, 2, Q("0.02 in")),
    Sketcher.Constraint("DistanceY", 9, 2, 9, 1, Q("0.16 in")),
    Sketcher.Constraint("DistanceX", 1, 2, -1, 1, Q("0.2 in")),
    Sketcher.Constraint("DistanceX", 7, 2, 7, 1, 2.83758),
])
sketch8.setExpression("Constraints[21]", "Params.sketch8_width")
sketch8.setExpression("Constraints[22]", "Params.sketch8_radius")
sketch8.setExpression("Constraints[24]", "Params.sketch8_width2")
sketch8.setExpression("Constraints[25]", "Params.sketch8_height")
sketch8.setExpression("Constraints[26]", "Params.sketch8_height2")
pad5 = body4.newObject("PartDesign::Pad", "Pad004")
pad5.Profile = sketch8
pad5.setExpression("Length", "Params.pad5_length")
pad5.Reversed = True

# Sketch on XY plane
sketch9 = body4.newObject("Sketcher::SketchObject", "Sketch008")
sketch9.AttachmentSupport = (doc.getObject("XY_Plane003"), [""])
sketch9.MapMode = "FlatFace"
sketch9.AttachmentOffset = App.Placement(App.Vector(0, 0, 0.08 * 25.4), App.Rotation())
sketch9.addGeometry([
    Part.LineSegment(App.Vector(-15.2, 23.9, 0), App.Vector(-8.9, 23.9, 0)),  # 0
    Part.ArcOfCircle(Part.Circle(App.Vector(-8.9, 25.4, 0), App.Vector(0, 0, 1), 1.5), math.radians(-90), math.radians(90)),  # 1
    Part.LineSegment(App.Vector(-8.9, 26.9, 0), App.Vector(-15.2, 26.9, 0)),  # 2
    Part.ArcOfCircle(Part.Circle(App.Vector(-15.2, 25.4, 0), App.Vector(0, 0, 1), 1.5), math.radians(90), math.radians(270)),  # 3
    Part.LineSegment(App.Vector(-15.2, 74.7, 0), App.Vector(-8.9, 74.7, 0)),  # 4
    Part.ArcOfCircle(Part.Circle(App.Vector(-8.9, 76.2, 0), App.Vector(0, 0, 1), 1.5), math.radians(-90), math.radians(90)),  # 5
    Part.LineSegment(App.Vector(-8.9, 77.7, 0), App.Vector(-15.2, 77.7, 0)),  # 6
    Part.ArcOfCircle(Part.Circle(App.Vector(-15.2, 76.2, 0), App.Vector(0, 0, 1), 1.5), math.radians(90), math.radians(270)),  # 7
    Part.LineSegment(App.Vector(-15.2, 125.5, 0), App.Vector(-8.9, 125.5, 0)),  # 8
    Part.ArcOfCircle(Part.Circle(App.Vector(-8.9, 127, 0), App.Vector(0, 0, 1), 1.5), math.radians(-90), math.radians(90)),  # 9
    Part.LineSegment(App.Vector(-8.9, 128.5, 0), App.Vector(-15.2, 128.5, 0)),  # 10
    Part.ArcOfCircle(Part.Circle(App.Vector(-15.2, 127, 0), App.Vector(0, 0, 1), 1.5), math.radians(90), math.radians(270)),  # 11
    Part.LineSegment(App.Vector(-15.2, 176.3, 0), App.Vector(-8.9, 176.3, 0)),  # 12
    Part.ArcOfCircle(Part.Circle(App.Vector(-8.9, 177.8, 0), App.Vector(0, 0, 1), 1.5), math.radians(-90), math.radians(90)),  # 13
    Part.LineSegment(App.Vector(-8.9, 179.3, 0), App.Vector(-15.2, 179.3, 0)),  # 14
    Part.ArcOfCircle(Part.Circle(App.Vector(-15.2, 177.8, 0), App.Vector(0, 0, 1), 1.5), math.radians(90), math.radians(270)),  # 15
], False)
sketch9.addConstraint([
    Sketcher.Constraint("Tangent", 0, 2, 1, 1),
    Sketcher.Constraint("Tangent", 1, 2, 2, 1),
    Sketcher.Constraint("Tangent", 2, 2, 3, 1),
    Sketcher.Constraint("Tangent", 3, 2, 0, 1),
    Sketcher.Constraint("Tangent", 4, 2, 5, 1),
    Sketcher.Constraint("Tangent", 5, 2, 6, 1),
    Sketcher.Constraint("Tangent", 6, 2, 7, 1),
    Sketcher.Constraint("Tangent", 7, 2, 4, 1),
    Sketcher.Constraint("Tangent", 8, 2, 9, 1),
    Sketcher.Constraint("Tangent", 9, 2, 10, 1),
    Sketcher.Constraint("Tangent", 10, 2, 11, 1),
    Sketcher.Constraint("Tangent", 11, 2, 8, 1),
    Sketcher.Constraint("Tangent", 12, 2, 13, 1),
    Sketcher.Constraint("Tangent", 13, 2, 14, 1),
    Sketcher.Constraint("Tangent", 14, 2, 15, 1),
    Sketcher.Constraint("Tangent", 15, 2, 12, 1),
    Sketcher.Constraint("Horizontal", 0),
    Sketcher.Constraint("Horizontal", 2),
    Sketcher.Constraint("Horizontal", 4),
    Sketcher.Constraint("Horizontal", 6),
    Sketcher.Constraint("Horizontal", 8),
    Sketcher.Constraint("Horizontal", 10),
    Sketcher.Constraint("Horizontal", 12),
    Sketcher.Constraint("Horizontal", 14),
    Sketcher.Constraint("Equal", 3, 5),
    Sketcher.Constraint("Equal", 7, 9),
    Sketcher.Constraint("Equal", 11, 13),
    Sketcher.Constraint("Vertical", 1, 3, 5, 3),
    Sketcher.Constraint("Vertical", 3, 3, 7, 3),
    Sketcher.Constraint("Vertical", 5, 3, 9, 3),
    Sketcher.Constraint("Vertical", 7, 3, 11, 3),
    Sketcher.Constraint("Vertical", 9, 3, 13, 3),
    Sketcher.Constraint("Vertical", 11, 3, 15, 3),
    Sketcher.Constraint("DistanceY", -1, 1, 1, 3, Q("1 in")),
    Sketcher.Constraint("DistanceY", -1, 1, 5, 3, Q("3 in")),
    Sketcher.Constraint("DistanceY", -1, 1, 9, 3, Q("5 in")),
    Sketcher.Constraint("DistanceY", -1, 1, 13, 3, Q("7 in")),
    Sketcher.Constraint("Radius", 1, Q("0.058 in")),
    Sketcher.Constraint("DistanceX", 0, 1, 0, 2, Q("0.25 in")),
    Sketcher.Constraint("DistanceX", 3, 3, -1, 1, Q("0.6 in")),
])
sketch9.setExpression("Constraints[37]", "Params.sketch9_radius")
sketch9.setExpression("Constraints[38]", "Params.sketch9_width")
pocket4 = body4.newObject("PartDesign::Pocket", "Pocket003")
pocket4.Profile = sketch9
pocket4.Type = "ThroughAll"

doc.recompute()
